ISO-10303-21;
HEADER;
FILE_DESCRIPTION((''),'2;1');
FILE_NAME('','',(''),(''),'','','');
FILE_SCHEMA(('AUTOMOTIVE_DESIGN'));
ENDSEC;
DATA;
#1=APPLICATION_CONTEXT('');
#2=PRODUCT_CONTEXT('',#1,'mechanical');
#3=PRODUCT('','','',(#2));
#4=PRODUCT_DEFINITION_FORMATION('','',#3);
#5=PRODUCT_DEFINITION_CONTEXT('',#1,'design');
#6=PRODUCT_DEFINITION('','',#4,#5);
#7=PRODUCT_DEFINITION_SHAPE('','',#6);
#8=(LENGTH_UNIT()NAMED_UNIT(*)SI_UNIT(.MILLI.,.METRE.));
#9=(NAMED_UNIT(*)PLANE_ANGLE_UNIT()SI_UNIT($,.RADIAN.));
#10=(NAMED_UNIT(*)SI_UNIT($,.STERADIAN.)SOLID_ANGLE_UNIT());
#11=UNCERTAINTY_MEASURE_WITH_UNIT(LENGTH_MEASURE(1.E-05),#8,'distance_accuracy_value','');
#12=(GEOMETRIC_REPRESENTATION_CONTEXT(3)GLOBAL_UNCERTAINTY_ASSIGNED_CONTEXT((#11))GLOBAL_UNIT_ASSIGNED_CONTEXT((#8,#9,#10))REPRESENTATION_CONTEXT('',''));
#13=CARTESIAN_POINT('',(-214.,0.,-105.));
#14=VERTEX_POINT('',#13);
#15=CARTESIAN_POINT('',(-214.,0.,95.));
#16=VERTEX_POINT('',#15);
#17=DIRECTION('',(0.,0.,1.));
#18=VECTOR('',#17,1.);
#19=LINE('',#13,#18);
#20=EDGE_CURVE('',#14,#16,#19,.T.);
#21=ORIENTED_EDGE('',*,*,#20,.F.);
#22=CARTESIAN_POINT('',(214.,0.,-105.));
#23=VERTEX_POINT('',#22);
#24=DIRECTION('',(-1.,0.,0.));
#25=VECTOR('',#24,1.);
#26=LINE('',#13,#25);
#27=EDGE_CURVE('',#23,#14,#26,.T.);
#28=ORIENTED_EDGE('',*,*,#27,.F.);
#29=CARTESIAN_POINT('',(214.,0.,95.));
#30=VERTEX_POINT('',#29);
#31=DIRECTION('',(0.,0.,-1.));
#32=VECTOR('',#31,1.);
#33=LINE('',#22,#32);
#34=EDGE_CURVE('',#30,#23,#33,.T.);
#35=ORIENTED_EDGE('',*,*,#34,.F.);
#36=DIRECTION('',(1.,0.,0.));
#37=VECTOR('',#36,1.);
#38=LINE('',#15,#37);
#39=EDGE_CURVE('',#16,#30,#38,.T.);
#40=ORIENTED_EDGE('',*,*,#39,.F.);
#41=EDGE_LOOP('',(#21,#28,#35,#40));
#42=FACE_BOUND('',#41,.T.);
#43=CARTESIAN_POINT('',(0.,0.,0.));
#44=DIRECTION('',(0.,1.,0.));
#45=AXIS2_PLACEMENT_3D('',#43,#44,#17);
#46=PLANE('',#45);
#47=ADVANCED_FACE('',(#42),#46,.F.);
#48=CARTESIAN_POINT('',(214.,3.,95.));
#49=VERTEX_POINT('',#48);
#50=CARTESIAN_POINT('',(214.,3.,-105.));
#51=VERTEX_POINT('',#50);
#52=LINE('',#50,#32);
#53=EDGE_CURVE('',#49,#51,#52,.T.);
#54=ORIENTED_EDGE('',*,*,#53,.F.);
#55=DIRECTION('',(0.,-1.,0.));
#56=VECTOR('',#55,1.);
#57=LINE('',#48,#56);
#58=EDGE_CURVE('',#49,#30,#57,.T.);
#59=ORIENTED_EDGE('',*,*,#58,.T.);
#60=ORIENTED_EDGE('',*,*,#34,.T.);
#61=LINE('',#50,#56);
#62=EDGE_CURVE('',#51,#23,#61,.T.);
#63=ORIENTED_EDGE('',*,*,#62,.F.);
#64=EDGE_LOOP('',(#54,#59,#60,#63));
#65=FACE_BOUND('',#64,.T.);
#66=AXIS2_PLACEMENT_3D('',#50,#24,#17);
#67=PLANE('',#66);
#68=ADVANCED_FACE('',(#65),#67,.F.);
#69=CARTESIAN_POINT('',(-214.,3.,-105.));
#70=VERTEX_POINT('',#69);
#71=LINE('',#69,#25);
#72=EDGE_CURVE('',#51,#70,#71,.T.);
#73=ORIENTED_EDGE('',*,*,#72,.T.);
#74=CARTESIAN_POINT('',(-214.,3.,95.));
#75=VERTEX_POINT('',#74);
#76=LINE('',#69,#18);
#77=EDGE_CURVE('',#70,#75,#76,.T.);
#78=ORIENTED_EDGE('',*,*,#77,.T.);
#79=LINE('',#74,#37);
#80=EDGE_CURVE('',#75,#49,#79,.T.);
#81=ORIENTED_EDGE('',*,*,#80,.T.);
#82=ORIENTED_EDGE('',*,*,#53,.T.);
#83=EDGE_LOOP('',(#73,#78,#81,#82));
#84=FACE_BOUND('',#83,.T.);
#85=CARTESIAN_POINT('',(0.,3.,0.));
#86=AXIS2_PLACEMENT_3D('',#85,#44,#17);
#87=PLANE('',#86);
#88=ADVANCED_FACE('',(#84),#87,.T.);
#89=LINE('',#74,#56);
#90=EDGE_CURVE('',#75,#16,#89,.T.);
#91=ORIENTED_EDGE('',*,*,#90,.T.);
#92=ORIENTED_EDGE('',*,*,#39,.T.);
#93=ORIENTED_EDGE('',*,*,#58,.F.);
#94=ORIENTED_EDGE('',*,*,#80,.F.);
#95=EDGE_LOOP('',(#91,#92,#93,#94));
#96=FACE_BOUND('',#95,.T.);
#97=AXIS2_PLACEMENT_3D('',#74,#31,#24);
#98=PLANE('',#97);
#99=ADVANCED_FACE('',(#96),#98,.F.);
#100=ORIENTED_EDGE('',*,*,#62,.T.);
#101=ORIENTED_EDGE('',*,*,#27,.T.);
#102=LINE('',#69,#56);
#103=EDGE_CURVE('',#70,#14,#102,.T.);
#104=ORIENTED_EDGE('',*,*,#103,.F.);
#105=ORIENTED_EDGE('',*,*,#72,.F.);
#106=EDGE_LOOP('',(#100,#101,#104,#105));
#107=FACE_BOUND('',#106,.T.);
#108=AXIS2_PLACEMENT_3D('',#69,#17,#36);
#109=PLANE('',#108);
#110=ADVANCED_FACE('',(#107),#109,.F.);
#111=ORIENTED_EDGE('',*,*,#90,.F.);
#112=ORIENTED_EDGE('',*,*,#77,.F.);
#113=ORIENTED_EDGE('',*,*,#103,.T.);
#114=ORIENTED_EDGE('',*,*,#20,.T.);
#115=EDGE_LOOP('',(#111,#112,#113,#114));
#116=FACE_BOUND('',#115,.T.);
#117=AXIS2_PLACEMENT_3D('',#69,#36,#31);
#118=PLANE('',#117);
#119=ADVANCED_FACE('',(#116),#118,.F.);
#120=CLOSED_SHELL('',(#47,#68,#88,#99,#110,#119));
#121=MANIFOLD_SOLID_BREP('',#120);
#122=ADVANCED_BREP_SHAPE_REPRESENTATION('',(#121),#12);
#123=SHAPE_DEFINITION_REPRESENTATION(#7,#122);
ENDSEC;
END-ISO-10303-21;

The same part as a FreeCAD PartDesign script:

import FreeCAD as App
import Part
import Sketcher
from FreeCAD import Vector

doc = App.newDocument("Part")
body = doc.addObject("PartDesign::Body", "Body")

# Sketch on XZ plane
sketch1 = body.newObject("Sketcher::SketchObject", "Sketch")
sketch1.AttachmentSupport = (doc.getObject("XZ_Plane"), [""])
sketch1.MapMode = "FlatFace"
sketch1.addGeometry([
    Part.LineSegment(Vector(-214, -105, 0), Vector(-214, 95, 0)),
    Part.LineSegment(Vector(-214, 95, 0), Vector(214, 95, 0)),
    Part.LineSegment(Vector(214, 95, 0), Vector(214, -105, 0)),
    Part.LineSegment(Vector(214, -105, 0), Vector(-214, -105, 0)),
], False)
sketch1.addConstraint([
    Sketcher.Constraint("Coincident", 0, 2, 1, 1),
    Sketcher.Constraint("Coincident", 1, 2, 2, 1),
    Sketcher.Constraint("Coincident", 2, 2, 3, 1),
    Sketcher.Constraint("Coincident", 3, 2, 0, 1),
    Sketcher.Constraint("Vertical", 0),
    Sketcher.Constraint("Horizontal", 1),
    Sketcher.Constraint("Vertical", 2),
    Sketcher.Constraint("Horizontal", 3),
    Sketcher.Constraint("DistanceX", 1, 1, 1, 2, 428.0),
    Sketcher.Constraint("DistanceY", 0, 1, 0, 2, 200.0),
    Sketcher.Constraint("DistanceX", 0, 2, -1, 1, 214.0),
    Sketcher.Constraint("DistanceY", -1, 1, 0, 2, 95.0),
])
pad1 = body.newObject("PartDesign::Pad", "Pad")
pad1.Profile = sketch1
pad1.Length = 3
pad1.Reversed = True

doc.recompute()
